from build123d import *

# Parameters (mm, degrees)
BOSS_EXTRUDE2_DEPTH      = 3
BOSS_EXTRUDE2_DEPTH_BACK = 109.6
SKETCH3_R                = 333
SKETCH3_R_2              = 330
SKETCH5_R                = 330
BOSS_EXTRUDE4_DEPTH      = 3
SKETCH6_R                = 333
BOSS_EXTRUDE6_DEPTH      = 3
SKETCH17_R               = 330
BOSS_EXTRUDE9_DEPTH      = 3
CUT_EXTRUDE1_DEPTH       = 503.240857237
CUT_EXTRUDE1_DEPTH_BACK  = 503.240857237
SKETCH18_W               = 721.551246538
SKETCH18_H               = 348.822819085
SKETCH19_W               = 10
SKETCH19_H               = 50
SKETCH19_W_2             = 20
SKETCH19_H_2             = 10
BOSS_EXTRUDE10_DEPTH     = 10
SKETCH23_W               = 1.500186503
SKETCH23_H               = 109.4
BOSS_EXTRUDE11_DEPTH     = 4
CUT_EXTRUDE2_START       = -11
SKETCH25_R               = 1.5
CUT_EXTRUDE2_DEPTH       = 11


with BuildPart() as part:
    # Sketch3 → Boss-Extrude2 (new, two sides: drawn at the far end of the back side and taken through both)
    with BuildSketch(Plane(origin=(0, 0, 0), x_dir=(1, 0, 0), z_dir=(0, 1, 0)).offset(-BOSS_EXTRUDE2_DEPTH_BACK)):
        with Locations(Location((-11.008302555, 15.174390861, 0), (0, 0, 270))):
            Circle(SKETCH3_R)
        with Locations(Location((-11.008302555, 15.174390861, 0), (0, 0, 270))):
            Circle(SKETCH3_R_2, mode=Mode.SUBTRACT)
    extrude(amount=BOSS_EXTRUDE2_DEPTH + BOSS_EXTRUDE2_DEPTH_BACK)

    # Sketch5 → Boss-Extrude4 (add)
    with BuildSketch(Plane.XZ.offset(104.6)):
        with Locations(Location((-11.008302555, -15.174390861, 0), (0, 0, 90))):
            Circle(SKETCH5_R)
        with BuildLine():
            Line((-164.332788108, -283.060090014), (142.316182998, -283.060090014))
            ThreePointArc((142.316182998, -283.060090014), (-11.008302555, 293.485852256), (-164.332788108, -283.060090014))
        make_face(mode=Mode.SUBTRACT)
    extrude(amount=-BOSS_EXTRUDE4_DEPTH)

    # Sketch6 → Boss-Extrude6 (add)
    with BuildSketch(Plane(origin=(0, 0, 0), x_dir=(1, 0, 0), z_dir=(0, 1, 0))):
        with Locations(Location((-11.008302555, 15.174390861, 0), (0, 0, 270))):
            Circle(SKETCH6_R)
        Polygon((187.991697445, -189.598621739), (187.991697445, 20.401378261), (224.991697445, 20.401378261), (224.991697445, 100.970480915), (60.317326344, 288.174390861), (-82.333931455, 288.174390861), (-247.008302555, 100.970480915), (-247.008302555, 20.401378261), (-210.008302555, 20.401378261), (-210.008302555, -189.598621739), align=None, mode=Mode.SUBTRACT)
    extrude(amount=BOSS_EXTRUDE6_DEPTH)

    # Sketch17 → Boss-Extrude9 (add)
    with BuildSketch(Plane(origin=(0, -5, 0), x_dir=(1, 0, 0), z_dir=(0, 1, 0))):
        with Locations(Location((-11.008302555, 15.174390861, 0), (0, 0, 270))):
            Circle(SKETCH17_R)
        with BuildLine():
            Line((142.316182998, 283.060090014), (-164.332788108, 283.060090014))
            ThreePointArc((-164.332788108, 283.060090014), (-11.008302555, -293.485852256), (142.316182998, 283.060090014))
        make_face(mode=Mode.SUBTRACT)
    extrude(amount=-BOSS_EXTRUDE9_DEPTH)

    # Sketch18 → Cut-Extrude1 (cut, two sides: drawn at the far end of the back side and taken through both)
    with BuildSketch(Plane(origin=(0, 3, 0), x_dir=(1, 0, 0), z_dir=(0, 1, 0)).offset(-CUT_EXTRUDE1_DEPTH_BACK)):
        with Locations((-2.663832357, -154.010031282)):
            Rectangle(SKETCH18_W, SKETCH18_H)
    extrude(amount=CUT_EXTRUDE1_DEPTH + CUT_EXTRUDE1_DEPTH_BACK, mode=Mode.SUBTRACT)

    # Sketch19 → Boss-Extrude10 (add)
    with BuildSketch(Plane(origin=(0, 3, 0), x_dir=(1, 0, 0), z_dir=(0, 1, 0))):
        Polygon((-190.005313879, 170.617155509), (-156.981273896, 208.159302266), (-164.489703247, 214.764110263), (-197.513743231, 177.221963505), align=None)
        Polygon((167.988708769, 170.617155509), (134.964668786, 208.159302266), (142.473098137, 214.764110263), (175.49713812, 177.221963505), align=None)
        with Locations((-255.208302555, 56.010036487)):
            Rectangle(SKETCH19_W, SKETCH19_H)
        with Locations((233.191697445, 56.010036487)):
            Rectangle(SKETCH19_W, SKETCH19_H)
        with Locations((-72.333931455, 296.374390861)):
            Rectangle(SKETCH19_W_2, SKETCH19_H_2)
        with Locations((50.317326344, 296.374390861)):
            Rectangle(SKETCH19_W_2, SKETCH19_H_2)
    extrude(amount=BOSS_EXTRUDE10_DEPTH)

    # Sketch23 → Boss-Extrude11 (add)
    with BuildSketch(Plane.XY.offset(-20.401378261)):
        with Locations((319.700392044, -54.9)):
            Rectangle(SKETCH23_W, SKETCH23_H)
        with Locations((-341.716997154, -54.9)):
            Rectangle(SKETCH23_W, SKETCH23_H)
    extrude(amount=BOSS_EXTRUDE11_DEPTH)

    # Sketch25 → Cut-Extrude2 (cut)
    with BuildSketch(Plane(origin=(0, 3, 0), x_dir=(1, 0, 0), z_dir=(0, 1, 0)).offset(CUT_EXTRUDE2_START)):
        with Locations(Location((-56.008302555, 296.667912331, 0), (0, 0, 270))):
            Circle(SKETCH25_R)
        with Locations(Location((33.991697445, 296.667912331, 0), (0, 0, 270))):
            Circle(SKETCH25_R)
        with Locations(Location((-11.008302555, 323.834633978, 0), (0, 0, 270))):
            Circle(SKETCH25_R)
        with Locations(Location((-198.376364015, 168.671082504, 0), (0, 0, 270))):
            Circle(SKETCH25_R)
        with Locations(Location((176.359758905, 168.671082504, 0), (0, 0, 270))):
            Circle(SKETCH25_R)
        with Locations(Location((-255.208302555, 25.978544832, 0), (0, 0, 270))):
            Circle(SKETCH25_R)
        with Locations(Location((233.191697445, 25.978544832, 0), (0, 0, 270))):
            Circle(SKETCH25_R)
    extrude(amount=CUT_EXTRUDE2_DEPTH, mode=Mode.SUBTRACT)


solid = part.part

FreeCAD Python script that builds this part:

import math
import FreeCAD as App
import Part
import Sketcher

V = App.Vector

doc = App.newDocument("Part")
body = doc.addObject("PartDesign::Body", "Body")

# Sketch on XZ plane
sketch1 = body.newObject("Sketcher::SketchObject", "Sketch")
sketch1.AttachmentSupport = (doc.getObject("XZ_Plane"), [""])
sketch1.MapMode = "FlatFace"
sketch1.addGeometry([
    Part.Circle(V(-11, -15, 0), V(0, 0, 1), 333),
    Part.Circle(V(-11, -15, 0), V(0, 0, 1), 330),
], False)
sketch1.addConstraint([
    Sketcher.Constraint("Coincident", 1, 3, 0, 3),
    Sketcher.Constraint("Diameter", 0, 666.0),
    Sketcher.Constraint("Diameter", 1, 660.0),
    Sketcher.Constraint("DistanceY", 0, 3, -1, 1, 15.174391),
    Sketcher.Constraint("DistanceX", 0, 3, -1, 1, 11.008303),
])
pad1 = body.newObject("PartDesign::Pad", "Pad")
pad1.Profile = sketch1
pad1.Type = "TwoLengths"
pad1.Length = 3
pad1.Length2 = 109.6
pad1.Reversed = True

# Sketch on XZ plane
sketch2 = body.newObject("Sketcher::SketchObject", "Sketch001")
sketch2.AttachmentSupport = (doc.getObject("XZ_Plane"), [""])
sketch2.MapMode = "FlatFace"
sketch2.AttachmentOffset = App.Placement(V(0, 0, 104.6), App.Rotation())
sketch2.addGeometry([
    Part.Circle(V(-11, -15, 0), V(0, 0, 1), 330),
    Part.LineSegment(V(142, -283, 0), V(-164, -283, 0)),
    Part.ArcOfCircle(Part.Circle(V(-11, -15, 0), V(0, 0, 1), 309), math.radians(-60), math.radians(240)),
], False)
sketch2.addConstraint([
    Sketcher.Constraint("Coincident", 1, 1, 2, 1),
    Sketcher.Constraint("Coincident", 2, 2, 1, 2),
    Sketcher.Constraint("Horizontal", 1),
    Sketcher.Constraint("Coincident", 2, 3, 0, 3),
    Sketcher.Constraint("Diameter", 0, 660.0),
    Sketcher.Constraint("Radius", 2, 308.660243),
    Sketcher.Constraint("DistanceX", 1, 2, 1, 1, 306.648971),
    Sketcher.Constraint("DistanceY", 0, 3, -1, 1, 15.174391),
    Sketcher.Constraint("DistanceX", 0, 3, -1, 1, 11.008303),
])
pad2 = body.newObject("PartDesign::Pad", "Pad001")
pad2.Profile = sketch2
pad2.Length = 3
pad2.Reversed = True

# Sketch on XZ plane
sketch3 = body.newObject("Sketcher::SketchObject", "Sketch002")
sketch3.AttachmentSupport = (doc.getObject("XZ_Plane"), [""])
sketch3.MapMode = "FlatFace"
sketch3.addGeometry([
    Part.Circle(V(-11, -15, 0), V(0, 0, 1), 333),  # 0
    Part.LineSegment(V(188, -20, 0), V(188, 190, 0)),  # 1
    Part.LineSegment(V(188, 190, 0), V(-210, 190, 0)),  # 2
    Part.LineSegment(V(-210, 190, 0), V(-210, -20, 0)),  # 3
    Part.LineSegment(V(-210, -20, 0), V(-247, -20, 0)),  # 4
    Part.LineSegment(V(-247, -20, 0), V(-247, -101, 0)),  # 5
    Part.LineSegment(V(-247, -101, 0), V(-82, -288, 0)),  # 6
    Part.LineSegment(V(-82, -288, 0), V(60, -288, 0)),  # 7
    Part.LineSegment(V(60, -288, 0), V(225, -101, 0)),  # 8
    Part.LineSegment(V(225, -101, 0), V(225, -20, 0)),  # 9
    Part.LineSegment(V(225, -20, 0), V(188, -20, 0)),  # 10
], False)
sketch3.addConstraint([
    Sketcher.Constraint("Coincident", 1, 2, 2, 1),
    Sketcher.Constraint("Coincident", 2, 2, 3, 1),
    Sketcher.Constraint("Coincident", 3, 2, 4, 1),
    Sketcher.Constraint("Coincident", 4, 2, 5, 1),
    Sketcher.Constraint("Coincident", 5, 2, 6, 1),
    Sketcher.Constraint("Coincident", 6, 2, 7, 1),
    Sketcher.Constraint("Coincident", 7, 2, 8, 1),
    Sketcher.Constraint("Coincident", 8, 2, 9, 1),
    Sketcher.Constraint("Coincident", 9, 2, 10, 1),
    Sketcher.Constraint("Coincident", 10, 2, 1, 1),
    Sketcher.Constraint("Vertical", 1),
    Sketcher.Constraint("Horizontal", 2),
    Sketcher.Constraint("Vertical", 3),
    Sketcher.Constraint("Horizontal", 4),
    Sketcher.Constraint("Vertical", 5),
    Sketcher.Constraint("Horizontal", 7),
    Sketcher.Constraint("Vertical", 9),
    Sketcher.Constraint("Horizontal", 10),
    Sketcher.Constraint("Horizontal", 5, 2, 8, 2),
    Sketcher.Constraint("Horizontal", 4, 2, 9, 2),
    Sketcher.Constraint("Equal", 4, 10),
    Sketcher.Constraint("Equal", 6, 8),
    Sketcher.Constraint("Diameter", 0, 666.0),
    Sketcher.Constraint("DistanceX", 2, 2, 2, 1, 398.0),
    Sketcher.Constraint("DistanceX", 4, 2, 4, 1, 37.0),
    Sketcher.Constraint("DistanceY", 1, 1, 1, 2, 210.0),
    Sketcher.Constraint("DistanceX", 0, 3, 1, 2, 199.0),
    Sketcher.Constraint("DistanceY", 6, 2, 0, 3, 273.0),
    Sketcher.Constraint("DistanceX", 7, 1, 7, 2, 142.651258),
    Sketcher.Constraint("DistanceY", 5, 2, 5, 1, 80.569103),
    Sketcher.Constraint("DistanceY", 0, 3, -1, 1, 15.174391),
    Sketcher.Constraint("DistanceY", -1, 1, 1, 2, 189.598622),
    Sketcher.Constraint("DistanceX", 6, 2, -1, 1, 82.333931),
])
pad3 = body.newObject("PartDesign::Pad", "Pad002")
pad3.Profile = sketch3
pad3.Length = 3
pad3.Reversed = True

# Sketch on XZ plane
sketch4 = body.newObject("Sketcher::SketchObject", "Sketch003")
sketch4.AttachmentSupport = (doc.getObject("XZ_Plane"), [""])
sketch4.MapMode = "FlatFace"
sketch4.AttachmentOffset = App.Placement(V(0, 0, 5), App.Rotation())
sketch4.addGeometry([
    Part.Circle(V(-11, -15, 0), V(0, 0, 1), 330),
    Part.LineSegment(V(-164, -283, 0), V(142, -283, 0)),
    Part.ArcOfCircle(Part.Circle(V(-11, -15, 0), V(0, 0, 1), 309), math.radians(-60), math.radians(240)),
], False)
sketch4.addConstraint([
    Sketcher.Constraint("Coincident", 1, 1, 2, 2),
    Sketcher.Constraint("Coincident", 2, 1, 1, 2),
    Sketcher.Constraint("Horizontal", 1),
    Sketcher.Constraint("Coincident", 2, 3, 0, 3),
    Sketcher.Constraint("Diameter", 0, 660.0),
    Sketcher.Constraint("Radius", 2, 308.660243),
    Sketcher.Constraint("DistanceX", 1, 1, 1, 2, 306.648971),
    Sketcher.Constraint("DistanceY", 0, 3, -1, 1, 15.174391),
    Sketcher.Constraint("DistanceX", 1, 1, -1, 1, 164.332788),
])
pad4 = body.newObject("PartDesign::Pad", "Pad003")
pad4.Profile = sketch4
pad4.Length = 3

# Sketch on XZ plane
sketch5 = body.newObject("Sketcher::SketchObject", "Sketch004")
sketch5.AttachmentSupport = (doc.getObject("XZ_Plane"), [""])
sketch5.MapMode = "FlatFace"
sketch5.AttachmentOffset = App.Placement(V(0, 0, -3), App.Rotation())
sketch5.addGeometry([
    Part.LineSegment(V(-363, -20, 0), V(-363, 328, 0)),
    Part.LineSegment(V(-363, 328, 0), V(358, 328, 0)),
    Part.LineSegment(V(358, 328, 0), V(358, -20, 0)),
    Part.LineSegment(V(358, -20, 0), V(-363, -20, 0)),
], False)
sketch5.addConstraint([
    Sketcher.Constraint("Coincident", 0, 2, 1, 1),
    Sketcher.Constraint("Coincident", 1, 2, 2, 1),
    Sketcher.Constraint("Coincident", 2, 2, 3, 1),
    Sketcher.Constraint("Coincident", 3, 2, 0, 1),
    Sketcher.Constraint("Vertical", 0),
    Sketcher.Constraint("Horizontal", 1),
    Sketcher.Constraint("Vertical", 2),
    Sketcher.Constraint("Horizontal", 3),
    Sketcher.Constraint("DistanceY", 0, 1, 0, 2, 348.822819),
    Sketcher.Constraint("DistanceX", 1, 1, 1, 2, 721.551247),
    Sketcher.Constraint("DistanceY", -1, 1, 0, 2, 328.421441),
    Sketcher.Constraint("DistanceX", -1, 1, 1, 2, 358.111791),
])
pocket1 = body.newObject("PartDesign::Pocket", "Pocket")
pocket1.Profile = sketch5
pocket1.Type = "ThroughAll"
pocket1.Midplane = True

# Sketch on XZ plane
sketch6 = body.newObject("Sketcher::SketchObject", "Sketch005")
sketch6.AttachmentSupport = (doc.getObject("XZ_Plane"), [""])
sketch6.MapMode = "FlatFace"
sketch6.AttachmentOffset = App.Placement(V(0, 0, -3), App.Rotation())
sketch6.addGeometry([
    Part.LineSegment(V(-190, -171, 0), V(-157, -208, 0)),  # 0
    Part.LineSegment(V(-157, -208, 0), V(-164, -215, 0)),  # 1
    Part.LineSegment(V(-164, -215, 0), V(-198, -177, 0)),  # 2
    Part.LineSegment(V(-198, -177, 0), V(-190, -171, 0)),  # 3
    Part.LineSegment(V(135, -208, 0), V(168, -171, 0)),  # 4
    Part.LineSegment(V(168, -171, 0), V(175, -177, 0)),  # 5
    Part.LineSegment(V(175, -177, 0), V(142, -215, 0)),  # 6
    Part.LineSegment(V(142, -215, 0), V(135, -208, 0)),  # 7
    Part.LineSegment(V(-260, -81, 0), V(-260, -31, 0)),  # 8
    Part.LineSegment(V(-260, -31, 0), V(-250, -31, 0)),  # 9
    Part.LineSegment(V(-250, -31, 0), V(-250, -81, 0)),  # 10
    Part.LineSegment(V(-250, -81, 0), V(-260, -81, 0)),  # 11
    Part.LineSegment(V(228, -81, 0), V(228, -31, 0)),  # 12
    Part.LineSegment(V(228, -31, 0), V(238, -31, 0)),  # 13
    Part.LineSegment(V(238, -31, 0), V(238, -81, 0)),  # 14
    Part.LineSegment(V(238, -81, 0), V(228, -81, 0)),  # 15
    Part.LineSegment(V(-82, -301, 0), V(-82, -291, 0)),  # 16
    Part.LineSegment(V(-82, -291, 0), V(-62, -291, 0)),  # 17
    Part.LineSegment(V(-62, -291, 0), V(-62, -301, 0)),  # 18
    Part.LineSegment(V(-62, -301, 0), V(-82, -301, 0)),  # 19
    Part.LineSegment(V(40, -301, 0), V(40, -291, 0)),  # 20
    Part.LineSegment(V(40, -291, 0), V(60, -291, 0)),  # 21
    Part.LineSegment(V(60, -291, 0), V(60, -301, 0)),  # 22
    Part.LineSegment(V(60, -301, 0), V(40, -301, 0)),  # 23
], False)
sketch6.addConstraint([
    Sketcher.Constraint("Coincident", 0, 2, 1, 1),
    Sketcher.Constraint("Coincident", 1, 2, 2, 1),
    Sketcher.Constraint("Coincident", 2, 2, 3, 1),
    Sketcher.Constraint("Coincident", 3, 2, 0, 1),
    Sketcher.Constraint("Coincident", 4, 2, 5, 1),
    Sketcher.Constraint("Coincident", 5, 2, 6, 1),
    Sketcher.Constraint("Coincident", 6, 2, 7, 1),
    Sketcher.Constraint("Coincident", 7, 2, 4, 1),
    Sketcher.Constraint("Coincident", 8, 2, 9, 1),
    Sketcher.Constraint("Coincident", 9, 2, 10, 1),
    Sketcher.Constraint("Coincident", 10, 2, 11, 1),
    Sketcher.Constraint("Coincident", 11, 2, 8, 1),
    Sketcher.Constraint("Coincident", 12, 2, 13, 1),
    Sketcher.Constraint("Coincident", 13, 2, 14, 1),
    Sketcher.Constraint("Coincident", 14, 2, 15, 1),
    Sketcher.Constraint("Coincident", 15, 2, 12, 1),
    Sketcher.Constraint("Coincident", 16, 2, 17, 1),
    Sketcher.Constraint("Coincident", 17, 2, 18, 1),
    Sketcher.Constraint("Coincident", 18, 2, 19, 1),
    Sketcher.Constraint("Coincident", 19, 2, 16, 1),
    Sketcher.Constraint("Coincident", 20, 2, 21, 1),
    Sketcher.Constraint("Coincident", 21, 2, 22, 1),
    Sketcher.Constraint("Coincident", 22, 2, 23, 1),
    Sketcher.Constraint("Coincident", 23, 2, 20, 1),
    Sketcher.Constraint("Vertical", 8),
    Sketcher.Constraint("Horizontal", 9),
    Sketcher.Constraint("Vertical", 10),
    Sketcher.Constraint("Horizontal", 11),
    Sketcher.Constraint("Vertical", 12),
    Sketcher.Constraint("Horizontal", 13),
    Sketcher.Constraint("Vertical", 14),
    Sketcher.Constraint("Horizontal", 15),
    Sketcher.Constraint("Vertical", 16),
    Sketcher.Constraint("Horizontal", 17),
    Sketcher.Constraint("Vertical", 18),
    Sketcher.Constraint("Horizontal", 19),
    Sketcher.Constraint("Vertical", 20),
    Sketcher.Constraint("Horizontal", 21),
    Sketcher.Constraint("Vertical", 22),
    Sketcher.Constraint("Horizontal", 23),
    Sketcher.Constraint("Perpendicular", 0, 1),
    Sketcher.Constraint("Perpendicular", 1, 2),
    Sketcher.Constraint("Perpendicular", 2, 3),
    Sketcher.Constraint("Perpendicular", 4, 5),
    Sketcher.Constraint("Perpendicular", 5, 6),
    Sketcher.Constraint("Perpendicular", 6, 7),
    Sketcher.Constraint("Horizontal", 3, 2, 4, 2),
    Sketcher.Constraint("Horizontal", 2, 2, 5, 2),
    Sketcher.Constraint("Horizontal", 1, 2, 6, 2),
    Sketcher.Constraint("Horizontal", 9, 2, 12, 2),
    Sketcher.Constraint("Horizontal", 11, 2, 14, 2),
    Sketcher.Constraint("Horizontal", 17, 2, 20, 2),
    Sketcher.Constraint("Horizontal", 19, 2, 22, 2),
    Sketcher.Constraint("Equal", 11, 13),
    Sketcher.Constraint("Equal", 19, 21),
    Sketcher.Constraint("Equal", 15, 16),
    Sketcher.Constraint("Equal", 2, 4),
    Sketcher.Constraint("DistanceX", 9, 1, 9, 2, 10.0),
    Sketcher.Constraint("DistanceX", 17, 1, 17, 2, 20.0),
    Sketcher.Constraint("DistanceY", 8, 1, 8, 2, 50.0),
    Sketcher.Constraint("Distance", 0, 50.0),
    Sketcher.Constraint("Distance", 1, 10.0),
    Sketcher.Constraint("DistanceX", -1, 1, 6, 2, 142.473098),
    Sketcher.Constraint("DistanceX", 1, 2, 6, 2, 306.962801),
    Sketcher.Constraint("DistanceX", 8, 2, 1, 2, 95.718599),
    Sketcher.Constraint("DistanceX", 6, 2, 12, 2, 85.718599),
    Sketcher.Constraint("DistanceX", 16, 2, 7, 2, 217.2986),
    Sketcher.Constraint("DistanceY", 1, 2, -1, 1, 214.76411),
    Sketcher.Constraint("DistanceX", -1, 1, 4, 2, 167.988709),
    Sketcher.Constraint("DistanceY", 16, 2, -1, 1, 291.374391),
    Sketcher.Constraint("DistanceY", 3, 2, 8, 2, 139.607119),
    Sketcher.Constraint("DistanceX", 21, 2, 6, 2, 82.155772),
])
pad5 = body.newObject("PartDesign::Pad", "Pad004")
pad5.Profile = sketch6
pad5.Length = 10
pad5.Reversed = True

# Sketch on XY plane
sketch7 = body.newObject("Sketcher::SketchObject", "Sketch006")
sketch7.AttachmentSupport = (doc.getObject("XY_Plane"), [""])
sketch7.MapMode = "FlatFace"
sketch7.AttachmentOffset = App.Placement(V(0, 0, -20.401378), App.Rotation())
sketch7.addGeometry([
    Part.LineSegment(V(319, -0.2, 0), V(319, -109.6, 0)),  # 0
    Part.LineSegment(V(319, -109.6, 0), V(320.5, -109.6, 0)),  # 1
    Part.LineSegment(V(320.5, -109.6, 0), V(320.5, -0.2, 0)),  # 2
    Part.LineSegment(V(320.5, -0.2, 0), V(319, -0.2, 0)),  # 3
    Part.LineSegment(V(-342.5, -0.2, 0), V(-342.5, -109.6, 0)),  # 4
    Part.LineSegment(V(-342.5, -109.6, 0), V(-341, -109.6, 0)),  # 5
    Part.LineSegment(V(-341, -109.6, 0), V(-341, -0.2, 0)),  # 6
    Part.LineSegment(V(-341, -0.2, 0), V(-342.5, -0.2, 0)),  # 7
], False)
sketch7.addConstraint([
    Sketcher.Constraint("Coincident", 0, 2, 1, 1),
    Sketcher.Constraint("Coincident", 1, 2, 2, 1),
    Sketcher.Constraint("Coincident", 2, 2, 3, 1),
    Sketcher.Constraint("Coincident", 3, 2, 0, 1),
    Sketcher.Constraint("Coincident", 4, 2, 5, 1),
    Sketcher.Constraint("Coincident", 5, 2, 6, 1),
    Sketcher.Constraint("Coincident", 6, 2, 7, 1),
    Sketcher.Constraint("Coincident", 7, 2, 4, 1),
    Sketcher.Constraint("Vertical", 0),
    Sketcher.Constraint("Horizontal", 1),
    Sketcher.Constraint("Vertical", 2),
    Sketcher.Constraint("Horizontal", 3),
    Sketcher.Constraint("Vertical", 4),
    Sketcher.Constraint("Horizontal", 5),
    Sketcher.Constraint("Vertical", 6),
    Sketcher.Constraint("Horizontal", 7),
    Sketcher.Constraint("Horizontal", 1, 2, 4, 2),
    Sketcher.Constraint("Horizontal", 3, 2, 6, 2),
    Sketcher.Constraint("Equal", 3, 5),
    Sketcher.Constraint("DistanceY", 0, 2, 0, 1, 109.4),
    Sketcher.Constraint("DistanceY", 0, 2, -1, 1, 109.6),
    Sketcher.Constraint("DistanceX", -1, 1, 0, 2, 318.950299),
    Sketcher.Constraint("DistanceX", 1, 1, 1, 2, 1.500187),
    Sketcher.Constraint("DistanceX", 4, 2, -1, 1, 342.46709),
])
pad6 = body.newObject("PartDesign::Pad", "Pad005")
pad6.Profile = sketch7
pad6.Length = 4

# Sketch on XZ plane
sketch8 = body.newObject("Sketcher::SketchObject", "Sketch007")
sketch8.AttachmentSupport = (doc.getObject("XZ_Plane"), [""])
sketch8.MapMode = "FlatFace"
sketch8.AttachmentOffset = App.Placement(V(0, 0, 8), App.Rotation())
sketch8.addGeometry([
    Part.Circle(V(-56, -296.7, 0), V(0, 0, 1), 1.5),  # 0
    Part.Circle(V(34, -296.7, 0), V(0, 0, 1), 1.5),  # 1
    Part.Circle(V(-11, -323.8, 0), V(0, 0, 1), 1.5),  # 2
    Part.Circle(V(-198.4, -168.7, 0), V(0, 0, 1), 1.5),  # 3
    Part.Circle(V(176.4, -168.7, 0), V(0, 0, 1), 1.5),  # 4
    Part.Circle(V(-255.2, -26, 0), V(0, 0, 1), 1.5),  # 5
    Part.Circle(V(233.2, -26, 0), V(0, 0, 1), 1.5),  # 6
], False)
sketch8.addConstraint([
    Sketcher.Constraint("Equal", 0, 1),
    Sketcher.Constraint("Equal", 1, 2),
    Sketcher.Constraint("Equal", 2, 3),
    Sketcher.Constraint("Equal", 3, 4),
    Sketcher.Constraint("Equal", 4, 5),
    Sketcher.Constraint("Equal", 5, 6),
    Sketcher.Constraint("Horizontal", 0, 3, 1, 3),
    Sketcher.Constraint("Horizontal", 3, 3, 4, 3),
    Sketcher.Constraint("Horizontal", 5, 3, 6, 3),
    Sketcher.Constraint("Diameter", 0, 3.0),
    Sketcher.Constraint("DistanceX", 0, 3, 1, 3, 90.0),
    Sketcher.Constraint("DistanceX", 0, 3, 2, 3, 45.0),
    Sketcher.Constraint("DistanceX", 5, 3, 0, 3, 199.2),
    Sketcher.Constraint("DistanceX", 1, 3, 6, 3, 199.2),
    Sketcher.Constraint("DistanceX", -1, 1, 4, 3, 176.359759),
    Sketcher.Constraint("DistanceY", 2, 3, 0, 3, 27.166722),
    Sketcher.Constraint("DistanceX", 3, 3, 0, 3, 142.368061),
    Sketcher.Constraint("DistanceY", 0, 3, 3, 3, 127.99683),
    Sketcher.Constraint("DistanceX", 1, 3, 4, 3, 142.368061),
    Sketcher.Constraint("DistanceY", 2, 3, 5, 3, 297.856089),
    Sketcher.Constraint("DistanceY", 0, 3, -1, 1, 296.667912),
])
pocket2 = body.newObject("PartDesign::Pocket", "Pocket001")
pocket2.Profile = sketch8
pocket2.Length = 11

doc.recompute()
